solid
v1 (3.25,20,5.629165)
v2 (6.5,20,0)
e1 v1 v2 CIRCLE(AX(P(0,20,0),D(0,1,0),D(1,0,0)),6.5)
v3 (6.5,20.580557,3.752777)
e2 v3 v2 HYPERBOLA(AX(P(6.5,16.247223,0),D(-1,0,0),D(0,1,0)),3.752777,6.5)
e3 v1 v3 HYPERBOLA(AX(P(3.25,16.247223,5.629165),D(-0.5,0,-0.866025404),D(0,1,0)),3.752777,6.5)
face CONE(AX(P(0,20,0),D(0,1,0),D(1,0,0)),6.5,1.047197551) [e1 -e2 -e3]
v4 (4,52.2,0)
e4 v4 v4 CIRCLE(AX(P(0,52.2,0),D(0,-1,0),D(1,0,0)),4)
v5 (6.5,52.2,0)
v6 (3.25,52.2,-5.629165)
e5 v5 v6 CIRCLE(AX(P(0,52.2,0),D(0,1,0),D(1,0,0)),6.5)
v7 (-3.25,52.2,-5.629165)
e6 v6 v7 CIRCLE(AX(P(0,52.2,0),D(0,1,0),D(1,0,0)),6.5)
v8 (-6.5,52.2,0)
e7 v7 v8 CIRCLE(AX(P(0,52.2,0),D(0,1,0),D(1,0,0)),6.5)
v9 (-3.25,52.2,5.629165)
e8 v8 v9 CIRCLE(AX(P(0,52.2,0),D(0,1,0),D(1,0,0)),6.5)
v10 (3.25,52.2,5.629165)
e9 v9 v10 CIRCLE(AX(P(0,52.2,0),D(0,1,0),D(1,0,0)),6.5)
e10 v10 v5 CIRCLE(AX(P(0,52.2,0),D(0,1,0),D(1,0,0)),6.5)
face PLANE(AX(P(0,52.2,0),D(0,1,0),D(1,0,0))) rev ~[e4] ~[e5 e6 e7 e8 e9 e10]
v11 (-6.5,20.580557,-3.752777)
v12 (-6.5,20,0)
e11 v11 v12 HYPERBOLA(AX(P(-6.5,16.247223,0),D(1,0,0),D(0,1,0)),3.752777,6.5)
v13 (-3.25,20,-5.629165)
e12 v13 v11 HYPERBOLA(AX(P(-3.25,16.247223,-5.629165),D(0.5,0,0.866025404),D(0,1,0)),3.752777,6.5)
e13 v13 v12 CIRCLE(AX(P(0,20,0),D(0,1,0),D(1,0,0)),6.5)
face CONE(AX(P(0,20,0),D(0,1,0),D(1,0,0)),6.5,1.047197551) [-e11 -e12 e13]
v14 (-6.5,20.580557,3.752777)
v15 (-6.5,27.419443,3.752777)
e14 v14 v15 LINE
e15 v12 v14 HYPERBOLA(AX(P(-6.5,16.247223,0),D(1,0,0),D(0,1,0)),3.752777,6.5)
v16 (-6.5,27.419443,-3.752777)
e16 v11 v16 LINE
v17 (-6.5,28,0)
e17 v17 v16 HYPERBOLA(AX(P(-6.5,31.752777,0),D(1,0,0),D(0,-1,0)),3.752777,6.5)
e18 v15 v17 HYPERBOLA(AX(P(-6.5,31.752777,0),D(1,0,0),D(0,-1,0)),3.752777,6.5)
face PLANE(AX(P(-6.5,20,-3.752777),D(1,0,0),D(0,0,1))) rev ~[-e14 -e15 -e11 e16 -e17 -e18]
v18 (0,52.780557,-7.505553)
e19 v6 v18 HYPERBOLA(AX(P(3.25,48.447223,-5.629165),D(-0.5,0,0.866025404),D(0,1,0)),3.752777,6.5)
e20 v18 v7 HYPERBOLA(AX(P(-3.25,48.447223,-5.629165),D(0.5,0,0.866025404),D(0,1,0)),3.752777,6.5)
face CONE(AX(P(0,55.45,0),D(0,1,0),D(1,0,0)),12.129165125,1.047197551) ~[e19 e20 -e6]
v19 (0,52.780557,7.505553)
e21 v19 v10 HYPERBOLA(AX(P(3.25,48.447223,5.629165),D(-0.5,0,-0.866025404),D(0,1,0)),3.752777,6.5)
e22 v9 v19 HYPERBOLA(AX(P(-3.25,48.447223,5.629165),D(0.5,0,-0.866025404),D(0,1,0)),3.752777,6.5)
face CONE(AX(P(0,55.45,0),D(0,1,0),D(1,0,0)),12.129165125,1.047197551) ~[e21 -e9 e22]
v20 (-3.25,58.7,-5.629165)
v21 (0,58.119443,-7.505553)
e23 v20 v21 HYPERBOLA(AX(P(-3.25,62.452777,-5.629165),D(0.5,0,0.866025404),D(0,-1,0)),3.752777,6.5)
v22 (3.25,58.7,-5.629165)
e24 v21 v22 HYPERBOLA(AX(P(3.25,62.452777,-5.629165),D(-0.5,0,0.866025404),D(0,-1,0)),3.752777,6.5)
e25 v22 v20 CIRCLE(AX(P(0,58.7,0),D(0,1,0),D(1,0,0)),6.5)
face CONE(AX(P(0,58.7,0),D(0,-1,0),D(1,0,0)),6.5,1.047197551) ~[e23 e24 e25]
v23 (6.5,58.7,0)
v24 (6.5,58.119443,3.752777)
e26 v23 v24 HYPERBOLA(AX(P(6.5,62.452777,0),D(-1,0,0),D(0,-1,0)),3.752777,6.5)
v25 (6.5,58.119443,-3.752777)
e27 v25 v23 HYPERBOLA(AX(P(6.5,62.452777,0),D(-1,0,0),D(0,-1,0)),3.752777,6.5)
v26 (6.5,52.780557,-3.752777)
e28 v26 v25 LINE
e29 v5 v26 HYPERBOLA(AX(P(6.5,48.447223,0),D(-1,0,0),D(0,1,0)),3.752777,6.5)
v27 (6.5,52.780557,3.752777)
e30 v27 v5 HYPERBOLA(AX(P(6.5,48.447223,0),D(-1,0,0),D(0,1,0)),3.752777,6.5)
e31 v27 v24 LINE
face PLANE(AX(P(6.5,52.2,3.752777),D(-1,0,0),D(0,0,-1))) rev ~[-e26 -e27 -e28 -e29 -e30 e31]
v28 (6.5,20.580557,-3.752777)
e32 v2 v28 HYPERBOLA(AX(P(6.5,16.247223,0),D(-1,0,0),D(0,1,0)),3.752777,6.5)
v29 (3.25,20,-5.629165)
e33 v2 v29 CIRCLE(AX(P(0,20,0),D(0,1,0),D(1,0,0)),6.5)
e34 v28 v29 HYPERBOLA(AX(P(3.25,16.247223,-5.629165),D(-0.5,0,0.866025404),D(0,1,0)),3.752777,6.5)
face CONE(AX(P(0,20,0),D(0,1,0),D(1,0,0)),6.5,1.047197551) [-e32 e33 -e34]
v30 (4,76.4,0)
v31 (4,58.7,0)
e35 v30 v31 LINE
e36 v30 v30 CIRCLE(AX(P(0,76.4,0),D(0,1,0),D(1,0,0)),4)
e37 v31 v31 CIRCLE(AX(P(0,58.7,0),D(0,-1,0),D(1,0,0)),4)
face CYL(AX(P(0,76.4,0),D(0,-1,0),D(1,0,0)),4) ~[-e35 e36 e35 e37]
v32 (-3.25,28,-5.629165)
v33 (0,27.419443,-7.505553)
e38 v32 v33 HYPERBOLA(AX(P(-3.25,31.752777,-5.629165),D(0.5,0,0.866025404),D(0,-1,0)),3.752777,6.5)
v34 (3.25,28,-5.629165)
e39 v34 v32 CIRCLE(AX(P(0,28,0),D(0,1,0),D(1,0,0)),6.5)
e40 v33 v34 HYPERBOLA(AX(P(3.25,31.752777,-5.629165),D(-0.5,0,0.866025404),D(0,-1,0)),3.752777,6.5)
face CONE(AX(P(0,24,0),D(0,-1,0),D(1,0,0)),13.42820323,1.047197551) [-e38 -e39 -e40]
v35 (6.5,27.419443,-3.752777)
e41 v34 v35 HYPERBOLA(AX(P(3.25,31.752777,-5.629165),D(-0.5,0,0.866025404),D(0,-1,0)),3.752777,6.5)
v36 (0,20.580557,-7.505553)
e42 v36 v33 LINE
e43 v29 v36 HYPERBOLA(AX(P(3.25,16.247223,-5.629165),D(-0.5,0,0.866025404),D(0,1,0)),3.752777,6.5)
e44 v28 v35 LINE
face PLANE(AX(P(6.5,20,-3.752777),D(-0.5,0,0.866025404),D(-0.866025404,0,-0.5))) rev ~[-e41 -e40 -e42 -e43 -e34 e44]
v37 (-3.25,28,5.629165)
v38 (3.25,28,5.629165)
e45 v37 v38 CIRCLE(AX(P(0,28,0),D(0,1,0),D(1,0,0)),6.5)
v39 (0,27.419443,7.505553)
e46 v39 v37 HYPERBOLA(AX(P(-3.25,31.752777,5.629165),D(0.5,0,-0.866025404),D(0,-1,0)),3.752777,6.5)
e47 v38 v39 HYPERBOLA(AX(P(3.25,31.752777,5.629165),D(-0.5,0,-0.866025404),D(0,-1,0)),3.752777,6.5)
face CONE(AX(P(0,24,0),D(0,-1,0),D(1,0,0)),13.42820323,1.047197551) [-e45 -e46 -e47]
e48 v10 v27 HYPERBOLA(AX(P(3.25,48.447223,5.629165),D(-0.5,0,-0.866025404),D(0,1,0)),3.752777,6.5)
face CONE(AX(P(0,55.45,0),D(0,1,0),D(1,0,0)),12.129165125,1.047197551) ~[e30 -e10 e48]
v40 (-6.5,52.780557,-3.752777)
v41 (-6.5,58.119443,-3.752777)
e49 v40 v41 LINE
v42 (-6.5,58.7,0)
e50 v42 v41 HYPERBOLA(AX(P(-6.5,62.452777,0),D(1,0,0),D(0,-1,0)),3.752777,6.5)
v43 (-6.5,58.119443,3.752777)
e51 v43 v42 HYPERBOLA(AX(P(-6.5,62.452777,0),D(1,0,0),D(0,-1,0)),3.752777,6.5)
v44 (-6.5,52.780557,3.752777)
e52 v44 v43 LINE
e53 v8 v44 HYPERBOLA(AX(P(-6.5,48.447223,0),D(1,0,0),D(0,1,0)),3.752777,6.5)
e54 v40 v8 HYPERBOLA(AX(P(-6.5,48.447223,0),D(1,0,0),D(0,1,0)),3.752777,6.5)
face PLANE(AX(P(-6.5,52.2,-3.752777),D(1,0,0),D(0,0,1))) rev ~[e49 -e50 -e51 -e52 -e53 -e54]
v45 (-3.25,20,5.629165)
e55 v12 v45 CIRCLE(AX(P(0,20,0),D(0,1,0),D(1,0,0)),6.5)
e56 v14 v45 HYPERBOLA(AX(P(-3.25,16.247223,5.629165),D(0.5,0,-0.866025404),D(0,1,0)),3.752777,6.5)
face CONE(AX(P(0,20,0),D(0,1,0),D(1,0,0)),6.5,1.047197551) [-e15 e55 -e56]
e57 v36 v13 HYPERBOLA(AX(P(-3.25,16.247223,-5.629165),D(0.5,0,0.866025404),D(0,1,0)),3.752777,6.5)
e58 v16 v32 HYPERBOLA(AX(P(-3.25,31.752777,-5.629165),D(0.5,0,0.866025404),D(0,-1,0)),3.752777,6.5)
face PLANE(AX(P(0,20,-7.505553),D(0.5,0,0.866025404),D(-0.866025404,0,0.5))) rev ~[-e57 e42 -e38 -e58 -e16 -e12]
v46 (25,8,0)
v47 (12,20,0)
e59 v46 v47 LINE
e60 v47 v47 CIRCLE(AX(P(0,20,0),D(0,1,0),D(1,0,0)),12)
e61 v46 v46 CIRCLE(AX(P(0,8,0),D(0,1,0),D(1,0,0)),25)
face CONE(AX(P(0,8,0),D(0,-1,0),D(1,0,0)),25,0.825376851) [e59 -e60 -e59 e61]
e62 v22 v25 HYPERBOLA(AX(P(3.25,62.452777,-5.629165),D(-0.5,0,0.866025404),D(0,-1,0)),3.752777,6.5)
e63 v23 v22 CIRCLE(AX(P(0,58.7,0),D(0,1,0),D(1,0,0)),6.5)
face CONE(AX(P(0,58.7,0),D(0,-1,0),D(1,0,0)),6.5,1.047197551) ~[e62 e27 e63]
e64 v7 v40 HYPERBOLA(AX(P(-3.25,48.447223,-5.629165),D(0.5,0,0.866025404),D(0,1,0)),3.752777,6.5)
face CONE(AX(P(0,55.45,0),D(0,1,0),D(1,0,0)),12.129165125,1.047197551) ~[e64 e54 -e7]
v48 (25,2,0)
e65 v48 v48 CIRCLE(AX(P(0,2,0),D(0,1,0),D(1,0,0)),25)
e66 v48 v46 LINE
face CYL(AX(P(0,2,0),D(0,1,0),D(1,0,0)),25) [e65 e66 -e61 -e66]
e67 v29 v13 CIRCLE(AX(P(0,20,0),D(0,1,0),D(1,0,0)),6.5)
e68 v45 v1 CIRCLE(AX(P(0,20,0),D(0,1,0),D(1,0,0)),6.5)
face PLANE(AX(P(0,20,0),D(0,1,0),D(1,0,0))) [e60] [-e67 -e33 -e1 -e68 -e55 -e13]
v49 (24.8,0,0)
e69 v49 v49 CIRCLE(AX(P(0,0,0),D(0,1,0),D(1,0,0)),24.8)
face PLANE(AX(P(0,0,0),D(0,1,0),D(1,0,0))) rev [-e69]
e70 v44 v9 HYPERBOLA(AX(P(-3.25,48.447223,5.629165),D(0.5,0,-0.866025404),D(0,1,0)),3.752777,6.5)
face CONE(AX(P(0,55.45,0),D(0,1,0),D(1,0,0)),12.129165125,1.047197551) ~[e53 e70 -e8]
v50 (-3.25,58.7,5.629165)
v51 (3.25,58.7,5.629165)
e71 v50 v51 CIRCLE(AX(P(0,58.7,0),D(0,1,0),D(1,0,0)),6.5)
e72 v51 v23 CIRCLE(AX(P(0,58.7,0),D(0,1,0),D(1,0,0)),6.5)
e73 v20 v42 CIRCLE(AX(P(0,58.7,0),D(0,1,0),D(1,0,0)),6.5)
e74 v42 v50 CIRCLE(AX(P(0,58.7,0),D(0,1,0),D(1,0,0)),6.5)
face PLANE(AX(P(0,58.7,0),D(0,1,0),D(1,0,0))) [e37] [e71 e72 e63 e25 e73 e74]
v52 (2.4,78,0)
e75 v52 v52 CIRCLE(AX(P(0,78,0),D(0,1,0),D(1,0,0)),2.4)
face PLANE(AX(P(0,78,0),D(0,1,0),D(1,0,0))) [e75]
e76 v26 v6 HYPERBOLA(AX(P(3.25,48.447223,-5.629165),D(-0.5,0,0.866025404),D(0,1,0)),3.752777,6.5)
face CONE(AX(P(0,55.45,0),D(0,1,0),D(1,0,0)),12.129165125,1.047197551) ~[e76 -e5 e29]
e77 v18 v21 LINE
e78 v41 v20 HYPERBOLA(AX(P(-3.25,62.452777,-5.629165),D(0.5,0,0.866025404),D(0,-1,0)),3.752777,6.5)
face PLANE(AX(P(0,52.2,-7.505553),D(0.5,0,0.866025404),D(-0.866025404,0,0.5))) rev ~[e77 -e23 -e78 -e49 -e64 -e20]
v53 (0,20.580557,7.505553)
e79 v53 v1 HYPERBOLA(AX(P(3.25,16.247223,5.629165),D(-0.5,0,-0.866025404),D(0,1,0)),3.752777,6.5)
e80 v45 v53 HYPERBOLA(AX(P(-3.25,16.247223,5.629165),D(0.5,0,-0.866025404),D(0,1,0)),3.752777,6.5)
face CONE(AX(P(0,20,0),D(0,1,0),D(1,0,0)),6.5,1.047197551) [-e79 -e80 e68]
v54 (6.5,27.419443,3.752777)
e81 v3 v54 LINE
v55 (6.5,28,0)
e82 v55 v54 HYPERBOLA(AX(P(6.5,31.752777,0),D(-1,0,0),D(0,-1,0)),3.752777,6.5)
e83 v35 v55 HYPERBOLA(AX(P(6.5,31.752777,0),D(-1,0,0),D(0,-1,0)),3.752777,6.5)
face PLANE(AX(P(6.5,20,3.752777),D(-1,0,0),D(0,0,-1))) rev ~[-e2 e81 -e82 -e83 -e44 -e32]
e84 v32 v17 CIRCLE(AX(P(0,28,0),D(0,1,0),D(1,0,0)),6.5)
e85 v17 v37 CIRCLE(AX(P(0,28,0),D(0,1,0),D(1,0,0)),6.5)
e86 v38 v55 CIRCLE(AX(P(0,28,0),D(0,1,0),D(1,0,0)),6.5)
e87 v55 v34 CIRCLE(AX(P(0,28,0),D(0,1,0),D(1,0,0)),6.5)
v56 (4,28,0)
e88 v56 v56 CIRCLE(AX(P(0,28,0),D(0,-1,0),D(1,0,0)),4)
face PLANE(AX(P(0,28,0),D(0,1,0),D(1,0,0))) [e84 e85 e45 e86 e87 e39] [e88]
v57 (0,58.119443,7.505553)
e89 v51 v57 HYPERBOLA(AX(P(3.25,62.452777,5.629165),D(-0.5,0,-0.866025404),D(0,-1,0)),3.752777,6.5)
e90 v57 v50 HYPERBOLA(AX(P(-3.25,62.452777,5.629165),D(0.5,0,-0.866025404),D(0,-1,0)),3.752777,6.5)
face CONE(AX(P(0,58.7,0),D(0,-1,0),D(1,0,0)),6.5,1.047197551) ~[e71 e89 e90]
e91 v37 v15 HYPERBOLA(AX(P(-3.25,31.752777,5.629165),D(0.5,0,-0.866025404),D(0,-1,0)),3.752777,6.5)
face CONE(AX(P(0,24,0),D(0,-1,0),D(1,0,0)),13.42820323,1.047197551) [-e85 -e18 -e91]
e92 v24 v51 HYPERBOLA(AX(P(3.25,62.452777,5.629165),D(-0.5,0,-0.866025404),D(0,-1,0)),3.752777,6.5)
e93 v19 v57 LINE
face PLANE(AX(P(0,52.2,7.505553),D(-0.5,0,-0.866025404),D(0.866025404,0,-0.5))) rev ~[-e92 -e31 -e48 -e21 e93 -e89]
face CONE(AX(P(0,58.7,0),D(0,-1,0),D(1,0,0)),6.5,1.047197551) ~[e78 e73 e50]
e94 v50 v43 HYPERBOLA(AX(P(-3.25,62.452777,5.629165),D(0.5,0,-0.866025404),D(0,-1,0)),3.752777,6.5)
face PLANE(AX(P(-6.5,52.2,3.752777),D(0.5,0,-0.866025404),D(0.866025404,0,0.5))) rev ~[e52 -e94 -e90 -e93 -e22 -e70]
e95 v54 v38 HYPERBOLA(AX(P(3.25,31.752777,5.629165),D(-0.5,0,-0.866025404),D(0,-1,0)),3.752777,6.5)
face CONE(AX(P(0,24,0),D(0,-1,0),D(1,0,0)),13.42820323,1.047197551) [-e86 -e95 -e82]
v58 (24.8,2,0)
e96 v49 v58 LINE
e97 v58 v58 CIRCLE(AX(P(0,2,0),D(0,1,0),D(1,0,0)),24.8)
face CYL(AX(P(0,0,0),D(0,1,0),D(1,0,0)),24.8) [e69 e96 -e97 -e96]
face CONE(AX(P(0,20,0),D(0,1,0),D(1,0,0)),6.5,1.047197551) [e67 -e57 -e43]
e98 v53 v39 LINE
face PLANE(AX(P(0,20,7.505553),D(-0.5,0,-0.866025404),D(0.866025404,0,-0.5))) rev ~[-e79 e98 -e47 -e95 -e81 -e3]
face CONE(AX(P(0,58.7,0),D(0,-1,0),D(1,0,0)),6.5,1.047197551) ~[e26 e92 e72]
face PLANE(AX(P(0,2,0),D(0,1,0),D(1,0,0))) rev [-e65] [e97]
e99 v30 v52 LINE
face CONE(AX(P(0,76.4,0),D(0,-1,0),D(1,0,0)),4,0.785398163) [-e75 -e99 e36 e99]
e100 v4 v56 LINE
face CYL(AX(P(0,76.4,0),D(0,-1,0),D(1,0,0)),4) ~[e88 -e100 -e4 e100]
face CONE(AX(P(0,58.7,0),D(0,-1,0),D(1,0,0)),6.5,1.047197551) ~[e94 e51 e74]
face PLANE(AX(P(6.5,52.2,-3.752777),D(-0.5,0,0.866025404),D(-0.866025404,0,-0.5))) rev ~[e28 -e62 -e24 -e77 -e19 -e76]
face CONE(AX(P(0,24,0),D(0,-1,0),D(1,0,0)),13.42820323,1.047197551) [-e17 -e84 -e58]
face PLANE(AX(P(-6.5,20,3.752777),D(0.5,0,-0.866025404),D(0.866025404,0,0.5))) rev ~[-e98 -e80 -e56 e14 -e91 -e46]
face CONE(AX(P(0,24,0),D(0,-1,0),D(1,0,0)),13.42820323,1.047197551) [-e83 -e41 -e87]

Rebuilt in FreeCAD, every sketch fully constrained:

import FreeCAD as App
import Part
import Sketcher
from FreeCAD import Vector
Q = App.Units.Quantity


def add_polygon(sketch, points):
    """Adds a closed chain of lines whose ends are joined by coincident constraints."""
    first, n = sketch.GeometryCount, len(points)
    for a, b in zip(points, points[1:] + points[:1]):
        sketch.addGeometry(Part.LineSegment(App.Vector(*a, 0), App.Vector(*b, 0)), False)
    for i in range(n):
        sketch.addConstraint(Sketcher.Constraint("Coincident", first + i, 2, first + (i + 1) % n, 1))

doc = App.newDocument("Part")
body = doc.addObject("PartDesign::Body", "Body")

sketch1 = body.newObject("Sketcher::SketchObject", "Sketch")
sketch1.AttachmentSupport = (doc.getObject("XY_Plane"), [""])
sketch1.MapMode = "FlatFace"
add_polygon(sketch1, [(-24.8, 0), (0, 0), (0, 78), (-2.4, 78), (-4, 76.4), (-4, 20), (-12, 20), (-25, 8), (-25, 2), (-24.8, 2)])
sketch1.addConstraint(Sketcher.Constraint("Horizontal", 0))
sketch1.addConstraint(Sketcher.Constraint("Vertical", 1))
sketch1.addConstraint(Sketcher.Constraint("Horizontal", 2))
sketch1.addConstraint(Sketcher.Constraint("Vertical", 4))
sketch1.addConstraint(Sketcher.Constraint("Horizontal", 5))
sketch1.addConstraint(Sketcher.Constraint("Vertical", 7))
sketch1.addConstraint(Sketcher.Constraint("Horizontal", 8))
sketch1.addConstraint(Sketcher.Constraint("Vertical", 9))
sketch1.addConstraint(Sketcher.Constraint("Coincident", 0, 2, -1, 1))
sketch1.addConstraint(Sketcher.Constraint("DistanceX", 5, 2, 5, 1, 8.0))
sketch1.addConstraint(Sketcher.Constraint("DistanceY", 1, 1, 1, 2, 78.0))
sketch1.addConstraint(Sketcher.Constraint("DistanceY", 7, 2, 7, 1, 6.0))
sketch1.addConstraint(Sketcher.Constraint("DistanceY", 9, 2, 9, 1, 2.0))
sketch1.addConstraint(Sketcher.Constraint("Angle", 3, Q("-135 deg")))
sketch1.addConstraint(Sketcher.Constraint("DistanceX", 0, 1, 0, 2, 24.8))
sketch1.addConstraint(Sketcher.Constraint("DistanceX", 2, 2, 2, 1, 2.4))
sketch1.addConstraint(Sketcher.Constraint("DistanceX", 8, 1, 8, 2, 0.2))
sketch1.addConstraint(Sketcher.Constraint("DistanceY", 4, 2, 4, 1, 56.4))
sketch1.addConstraint(Sketcher.Constraint("DistanceX", 3, 2, -1, 1, 4.0))
revolution = body.newObject("PartDesign::Revolution", "Revolution")
revolution.Profile = sketch1
revolution.ReferenceAxis = (sketch1, ["V_Axis"])
revolution.Angle = 360

sketch2 = body.newObject("Sketcher::SketchObject", "Sketch001")
sketch2.AttachmentSupport = (doc.getObject("XZ_Plane"), [""])
sketch2.MapMode = "FlatFace"
sketch2.AttachmentOffset = App.Placement(Vector(0, 0, -20), App.Rotation())
add_polygon(sketch2, [(0, -7.505553), (-6.5, -3.752777), (-6.5, 3.752777), (0, 7.505553), (6.5, 3.752777), (6.5, -3.752777)])
sketch2.addConstraint(Sketcher.Constraint("Vertical", 1))
sketch2.addConstraint(Sketcher.Constraint("Vertical", 4))
sketch2.addConstraint(Sketcher.Constraint("Symmetric", 0, 2, 3, 2, -1, 1))
sketch2.addConstraint(Sketcher.Constraint("Symmetric", 2, 2, 5, 2, -1, 1))
sketch2.addConstraint(Sketcher.Constraint("PointOnObject", 2, 2, -2))
sketch2.addConstraint(Sketcher.Constraint("Parallel", 2, 5))
sketch2.addConstraint(Sketcher.Constraint("Horizontal", 1, 2, 3, 2))
sketch2.addConstraint(Sketcher.Constraint("Angle", 0, Q("150 deg")))
sketch2.addConstraint(Sketcher.Constraint("DistanceX", 1, 2, 3, 2, 13.0))
sketch2.addConstraint(Sketcher.Constraint("DistanceY", 1, 1, 1, 2, 7.505554))
pad1 = body.newObject("PartDesign::Pad", "Pad")
pad1.Profile = sketch2
pad1.Length = 8
pad1.Reversed = True

sketch3 = body.newObject("Sketcher::SketchObject", "Sketch002")
sketch3.AttachmentSupport = (doc.getObject("XZ_Plane"), [""])
sketch3.MapMode = "FlatFace"
sketch3.AttachmentOffset = App.Placement(Vector(0, 0, -52.2), App.Rotation())
add_polygon(sketch3, [(6.5, -3.752777), (0, -7.505553), (-6.5, -3.752777), (-6.5, 3.752777), (0, 7.505553), (6.5, 3.752777)])
sketch3.addConstraint(Sketcher.Constraint("Vertical", 2))
sketch3.addConstraint(Sketcher.Constraint("Vertical", 5))
sketch3.addConstraint(Sketcher.Constraint("Symmetric", 0, 2, 3, 2, -1, 1))
sketch3.addConstraint(Sketcher.Constraint("Symmetric", 1, 2, 4, 2, -1, 1))
sketch3.addConstraint(Sketcher.Constraint("PointOnObject", 0, 2, -2))
sketch3.addConstraint(Sketcher.Constraint("Parallel", 0, 3))
sketch3.addConstraint(Sketcher.Constraint("Horizontal", 2, 2, 4, 2))
sketch3.addConstraint(Sketcher.Constraint("Angle", 0, Q("-150 deg")))
sketch3.addConstraint(Sketcher.Constraint("DistanceX", 2, 2, 4, 2, 13.0))
sketch3.addConstraint(Sketcher.Constraint("DistanceY", 2, 1, 2, 2, 7.505554))
pad2 = body.newObject("PartDesign::Pad", "Pad001")
pad2.Profile = sketch3
pad2.Length = 6.5
pad2.Reversed = True

sketch4 = body.newObject("Sketcher::SketchObject", "Sketch003")
sketch4.AttachmentSupport = (doc.getObject("XY_Plane"), [""])
sketch4.MapMode = "FlatFace"
add_polygon(sketch4, [(-6.5, 58.7), (-12.129165, 58.7), (-12.129165, 55.45)])
add_polygon(sketch4, [(-12.129165, 55.45), (-12.129165, 52.2), (-6.5, 52.2)])
add_polygon(sketch4, [(-13.428203, 28), (-13.428203, 24), (-6.5, 28)])
add_polygon(sketch4, [(-13.428203, 24), (-13.428203, 20), (-6.5, 20)])
sketch4.addConstraint(Sketcher.Constraint("Horizontal", 0))
sketch4.addConstraint(Sketcher.Constraint("Vertical", 1))
sketch4.addConstraint(Sketcher.Constraint("Vertical", 3))
sketch4.addConstraint(Sketcher.Constraint("Horizontal", 4))
sketch4.addConstraint(Sketcher.Constraint("Vertical", 6))
sketch4.addConstraint(Sketcher.Constraint("Horizontal", 8))
sketch4.addConstraint(Sketcher.Constraint("Vertical", 9))
sketch4.addConstraint(Sketcher.Constraint("Horizontal", 10))
sketch4.addConstraint(Sketcher.Constraint("Coincident", 5, 2, 1, 2))
sketch4.addConstraint(Sketcher.Constraint("Coincident", 11, 2, 6, 2))
sketch4.addConstraint(Sketcher.Constraint("Parallel", 2, 7))
sketch4.addConstraint(Sketcher.Constraint("Parallel", 5, 11))
sketch4.addConstraint(Sketcher.Constraint("Vertical", 2, 2, 4, 2))
sketch4.addConstraint(Sketcher.Constraint("Vertical", 4, 2, 7, 2))
sketch4.addConstraint(Sketcher.Constraint("Vertical", 7, 2, 10, 2))
sketch4.addConstraint(Sketcher.Constraint("Equal", 1, 3))
sketch4.addConstraint(Sketcher.Constraint("DistanceY", 6, 2, 6, 1, 4.0))
sketch4.addConstraint(Sketcher.Constraint("Angle", 2, Q("30 deg")))
sketch4.addConstraint(Sketcher.Constraint("DistanceY", -1, 1, 6, 2, 24.0))
sketch4.addConstraint(Sketcher.Constraint("Distance", 2, 6.5))
sketch4.addConstraint(Sketcher.Constraint("DistanceY", -1, 1, 0, 2, 58.7))
sketch4.addConstraint(Sketcher.Constraint("DistanceX", 2, 2, -1, 1, 6.5))
groove = body.newObject("PartDesign::Groove", "Groove")
groove.Profile = sketch4
groove.ReferenceAxis = (sketch4, ["V_Axis"])
groove.Angle = 360

doc.recompute()
